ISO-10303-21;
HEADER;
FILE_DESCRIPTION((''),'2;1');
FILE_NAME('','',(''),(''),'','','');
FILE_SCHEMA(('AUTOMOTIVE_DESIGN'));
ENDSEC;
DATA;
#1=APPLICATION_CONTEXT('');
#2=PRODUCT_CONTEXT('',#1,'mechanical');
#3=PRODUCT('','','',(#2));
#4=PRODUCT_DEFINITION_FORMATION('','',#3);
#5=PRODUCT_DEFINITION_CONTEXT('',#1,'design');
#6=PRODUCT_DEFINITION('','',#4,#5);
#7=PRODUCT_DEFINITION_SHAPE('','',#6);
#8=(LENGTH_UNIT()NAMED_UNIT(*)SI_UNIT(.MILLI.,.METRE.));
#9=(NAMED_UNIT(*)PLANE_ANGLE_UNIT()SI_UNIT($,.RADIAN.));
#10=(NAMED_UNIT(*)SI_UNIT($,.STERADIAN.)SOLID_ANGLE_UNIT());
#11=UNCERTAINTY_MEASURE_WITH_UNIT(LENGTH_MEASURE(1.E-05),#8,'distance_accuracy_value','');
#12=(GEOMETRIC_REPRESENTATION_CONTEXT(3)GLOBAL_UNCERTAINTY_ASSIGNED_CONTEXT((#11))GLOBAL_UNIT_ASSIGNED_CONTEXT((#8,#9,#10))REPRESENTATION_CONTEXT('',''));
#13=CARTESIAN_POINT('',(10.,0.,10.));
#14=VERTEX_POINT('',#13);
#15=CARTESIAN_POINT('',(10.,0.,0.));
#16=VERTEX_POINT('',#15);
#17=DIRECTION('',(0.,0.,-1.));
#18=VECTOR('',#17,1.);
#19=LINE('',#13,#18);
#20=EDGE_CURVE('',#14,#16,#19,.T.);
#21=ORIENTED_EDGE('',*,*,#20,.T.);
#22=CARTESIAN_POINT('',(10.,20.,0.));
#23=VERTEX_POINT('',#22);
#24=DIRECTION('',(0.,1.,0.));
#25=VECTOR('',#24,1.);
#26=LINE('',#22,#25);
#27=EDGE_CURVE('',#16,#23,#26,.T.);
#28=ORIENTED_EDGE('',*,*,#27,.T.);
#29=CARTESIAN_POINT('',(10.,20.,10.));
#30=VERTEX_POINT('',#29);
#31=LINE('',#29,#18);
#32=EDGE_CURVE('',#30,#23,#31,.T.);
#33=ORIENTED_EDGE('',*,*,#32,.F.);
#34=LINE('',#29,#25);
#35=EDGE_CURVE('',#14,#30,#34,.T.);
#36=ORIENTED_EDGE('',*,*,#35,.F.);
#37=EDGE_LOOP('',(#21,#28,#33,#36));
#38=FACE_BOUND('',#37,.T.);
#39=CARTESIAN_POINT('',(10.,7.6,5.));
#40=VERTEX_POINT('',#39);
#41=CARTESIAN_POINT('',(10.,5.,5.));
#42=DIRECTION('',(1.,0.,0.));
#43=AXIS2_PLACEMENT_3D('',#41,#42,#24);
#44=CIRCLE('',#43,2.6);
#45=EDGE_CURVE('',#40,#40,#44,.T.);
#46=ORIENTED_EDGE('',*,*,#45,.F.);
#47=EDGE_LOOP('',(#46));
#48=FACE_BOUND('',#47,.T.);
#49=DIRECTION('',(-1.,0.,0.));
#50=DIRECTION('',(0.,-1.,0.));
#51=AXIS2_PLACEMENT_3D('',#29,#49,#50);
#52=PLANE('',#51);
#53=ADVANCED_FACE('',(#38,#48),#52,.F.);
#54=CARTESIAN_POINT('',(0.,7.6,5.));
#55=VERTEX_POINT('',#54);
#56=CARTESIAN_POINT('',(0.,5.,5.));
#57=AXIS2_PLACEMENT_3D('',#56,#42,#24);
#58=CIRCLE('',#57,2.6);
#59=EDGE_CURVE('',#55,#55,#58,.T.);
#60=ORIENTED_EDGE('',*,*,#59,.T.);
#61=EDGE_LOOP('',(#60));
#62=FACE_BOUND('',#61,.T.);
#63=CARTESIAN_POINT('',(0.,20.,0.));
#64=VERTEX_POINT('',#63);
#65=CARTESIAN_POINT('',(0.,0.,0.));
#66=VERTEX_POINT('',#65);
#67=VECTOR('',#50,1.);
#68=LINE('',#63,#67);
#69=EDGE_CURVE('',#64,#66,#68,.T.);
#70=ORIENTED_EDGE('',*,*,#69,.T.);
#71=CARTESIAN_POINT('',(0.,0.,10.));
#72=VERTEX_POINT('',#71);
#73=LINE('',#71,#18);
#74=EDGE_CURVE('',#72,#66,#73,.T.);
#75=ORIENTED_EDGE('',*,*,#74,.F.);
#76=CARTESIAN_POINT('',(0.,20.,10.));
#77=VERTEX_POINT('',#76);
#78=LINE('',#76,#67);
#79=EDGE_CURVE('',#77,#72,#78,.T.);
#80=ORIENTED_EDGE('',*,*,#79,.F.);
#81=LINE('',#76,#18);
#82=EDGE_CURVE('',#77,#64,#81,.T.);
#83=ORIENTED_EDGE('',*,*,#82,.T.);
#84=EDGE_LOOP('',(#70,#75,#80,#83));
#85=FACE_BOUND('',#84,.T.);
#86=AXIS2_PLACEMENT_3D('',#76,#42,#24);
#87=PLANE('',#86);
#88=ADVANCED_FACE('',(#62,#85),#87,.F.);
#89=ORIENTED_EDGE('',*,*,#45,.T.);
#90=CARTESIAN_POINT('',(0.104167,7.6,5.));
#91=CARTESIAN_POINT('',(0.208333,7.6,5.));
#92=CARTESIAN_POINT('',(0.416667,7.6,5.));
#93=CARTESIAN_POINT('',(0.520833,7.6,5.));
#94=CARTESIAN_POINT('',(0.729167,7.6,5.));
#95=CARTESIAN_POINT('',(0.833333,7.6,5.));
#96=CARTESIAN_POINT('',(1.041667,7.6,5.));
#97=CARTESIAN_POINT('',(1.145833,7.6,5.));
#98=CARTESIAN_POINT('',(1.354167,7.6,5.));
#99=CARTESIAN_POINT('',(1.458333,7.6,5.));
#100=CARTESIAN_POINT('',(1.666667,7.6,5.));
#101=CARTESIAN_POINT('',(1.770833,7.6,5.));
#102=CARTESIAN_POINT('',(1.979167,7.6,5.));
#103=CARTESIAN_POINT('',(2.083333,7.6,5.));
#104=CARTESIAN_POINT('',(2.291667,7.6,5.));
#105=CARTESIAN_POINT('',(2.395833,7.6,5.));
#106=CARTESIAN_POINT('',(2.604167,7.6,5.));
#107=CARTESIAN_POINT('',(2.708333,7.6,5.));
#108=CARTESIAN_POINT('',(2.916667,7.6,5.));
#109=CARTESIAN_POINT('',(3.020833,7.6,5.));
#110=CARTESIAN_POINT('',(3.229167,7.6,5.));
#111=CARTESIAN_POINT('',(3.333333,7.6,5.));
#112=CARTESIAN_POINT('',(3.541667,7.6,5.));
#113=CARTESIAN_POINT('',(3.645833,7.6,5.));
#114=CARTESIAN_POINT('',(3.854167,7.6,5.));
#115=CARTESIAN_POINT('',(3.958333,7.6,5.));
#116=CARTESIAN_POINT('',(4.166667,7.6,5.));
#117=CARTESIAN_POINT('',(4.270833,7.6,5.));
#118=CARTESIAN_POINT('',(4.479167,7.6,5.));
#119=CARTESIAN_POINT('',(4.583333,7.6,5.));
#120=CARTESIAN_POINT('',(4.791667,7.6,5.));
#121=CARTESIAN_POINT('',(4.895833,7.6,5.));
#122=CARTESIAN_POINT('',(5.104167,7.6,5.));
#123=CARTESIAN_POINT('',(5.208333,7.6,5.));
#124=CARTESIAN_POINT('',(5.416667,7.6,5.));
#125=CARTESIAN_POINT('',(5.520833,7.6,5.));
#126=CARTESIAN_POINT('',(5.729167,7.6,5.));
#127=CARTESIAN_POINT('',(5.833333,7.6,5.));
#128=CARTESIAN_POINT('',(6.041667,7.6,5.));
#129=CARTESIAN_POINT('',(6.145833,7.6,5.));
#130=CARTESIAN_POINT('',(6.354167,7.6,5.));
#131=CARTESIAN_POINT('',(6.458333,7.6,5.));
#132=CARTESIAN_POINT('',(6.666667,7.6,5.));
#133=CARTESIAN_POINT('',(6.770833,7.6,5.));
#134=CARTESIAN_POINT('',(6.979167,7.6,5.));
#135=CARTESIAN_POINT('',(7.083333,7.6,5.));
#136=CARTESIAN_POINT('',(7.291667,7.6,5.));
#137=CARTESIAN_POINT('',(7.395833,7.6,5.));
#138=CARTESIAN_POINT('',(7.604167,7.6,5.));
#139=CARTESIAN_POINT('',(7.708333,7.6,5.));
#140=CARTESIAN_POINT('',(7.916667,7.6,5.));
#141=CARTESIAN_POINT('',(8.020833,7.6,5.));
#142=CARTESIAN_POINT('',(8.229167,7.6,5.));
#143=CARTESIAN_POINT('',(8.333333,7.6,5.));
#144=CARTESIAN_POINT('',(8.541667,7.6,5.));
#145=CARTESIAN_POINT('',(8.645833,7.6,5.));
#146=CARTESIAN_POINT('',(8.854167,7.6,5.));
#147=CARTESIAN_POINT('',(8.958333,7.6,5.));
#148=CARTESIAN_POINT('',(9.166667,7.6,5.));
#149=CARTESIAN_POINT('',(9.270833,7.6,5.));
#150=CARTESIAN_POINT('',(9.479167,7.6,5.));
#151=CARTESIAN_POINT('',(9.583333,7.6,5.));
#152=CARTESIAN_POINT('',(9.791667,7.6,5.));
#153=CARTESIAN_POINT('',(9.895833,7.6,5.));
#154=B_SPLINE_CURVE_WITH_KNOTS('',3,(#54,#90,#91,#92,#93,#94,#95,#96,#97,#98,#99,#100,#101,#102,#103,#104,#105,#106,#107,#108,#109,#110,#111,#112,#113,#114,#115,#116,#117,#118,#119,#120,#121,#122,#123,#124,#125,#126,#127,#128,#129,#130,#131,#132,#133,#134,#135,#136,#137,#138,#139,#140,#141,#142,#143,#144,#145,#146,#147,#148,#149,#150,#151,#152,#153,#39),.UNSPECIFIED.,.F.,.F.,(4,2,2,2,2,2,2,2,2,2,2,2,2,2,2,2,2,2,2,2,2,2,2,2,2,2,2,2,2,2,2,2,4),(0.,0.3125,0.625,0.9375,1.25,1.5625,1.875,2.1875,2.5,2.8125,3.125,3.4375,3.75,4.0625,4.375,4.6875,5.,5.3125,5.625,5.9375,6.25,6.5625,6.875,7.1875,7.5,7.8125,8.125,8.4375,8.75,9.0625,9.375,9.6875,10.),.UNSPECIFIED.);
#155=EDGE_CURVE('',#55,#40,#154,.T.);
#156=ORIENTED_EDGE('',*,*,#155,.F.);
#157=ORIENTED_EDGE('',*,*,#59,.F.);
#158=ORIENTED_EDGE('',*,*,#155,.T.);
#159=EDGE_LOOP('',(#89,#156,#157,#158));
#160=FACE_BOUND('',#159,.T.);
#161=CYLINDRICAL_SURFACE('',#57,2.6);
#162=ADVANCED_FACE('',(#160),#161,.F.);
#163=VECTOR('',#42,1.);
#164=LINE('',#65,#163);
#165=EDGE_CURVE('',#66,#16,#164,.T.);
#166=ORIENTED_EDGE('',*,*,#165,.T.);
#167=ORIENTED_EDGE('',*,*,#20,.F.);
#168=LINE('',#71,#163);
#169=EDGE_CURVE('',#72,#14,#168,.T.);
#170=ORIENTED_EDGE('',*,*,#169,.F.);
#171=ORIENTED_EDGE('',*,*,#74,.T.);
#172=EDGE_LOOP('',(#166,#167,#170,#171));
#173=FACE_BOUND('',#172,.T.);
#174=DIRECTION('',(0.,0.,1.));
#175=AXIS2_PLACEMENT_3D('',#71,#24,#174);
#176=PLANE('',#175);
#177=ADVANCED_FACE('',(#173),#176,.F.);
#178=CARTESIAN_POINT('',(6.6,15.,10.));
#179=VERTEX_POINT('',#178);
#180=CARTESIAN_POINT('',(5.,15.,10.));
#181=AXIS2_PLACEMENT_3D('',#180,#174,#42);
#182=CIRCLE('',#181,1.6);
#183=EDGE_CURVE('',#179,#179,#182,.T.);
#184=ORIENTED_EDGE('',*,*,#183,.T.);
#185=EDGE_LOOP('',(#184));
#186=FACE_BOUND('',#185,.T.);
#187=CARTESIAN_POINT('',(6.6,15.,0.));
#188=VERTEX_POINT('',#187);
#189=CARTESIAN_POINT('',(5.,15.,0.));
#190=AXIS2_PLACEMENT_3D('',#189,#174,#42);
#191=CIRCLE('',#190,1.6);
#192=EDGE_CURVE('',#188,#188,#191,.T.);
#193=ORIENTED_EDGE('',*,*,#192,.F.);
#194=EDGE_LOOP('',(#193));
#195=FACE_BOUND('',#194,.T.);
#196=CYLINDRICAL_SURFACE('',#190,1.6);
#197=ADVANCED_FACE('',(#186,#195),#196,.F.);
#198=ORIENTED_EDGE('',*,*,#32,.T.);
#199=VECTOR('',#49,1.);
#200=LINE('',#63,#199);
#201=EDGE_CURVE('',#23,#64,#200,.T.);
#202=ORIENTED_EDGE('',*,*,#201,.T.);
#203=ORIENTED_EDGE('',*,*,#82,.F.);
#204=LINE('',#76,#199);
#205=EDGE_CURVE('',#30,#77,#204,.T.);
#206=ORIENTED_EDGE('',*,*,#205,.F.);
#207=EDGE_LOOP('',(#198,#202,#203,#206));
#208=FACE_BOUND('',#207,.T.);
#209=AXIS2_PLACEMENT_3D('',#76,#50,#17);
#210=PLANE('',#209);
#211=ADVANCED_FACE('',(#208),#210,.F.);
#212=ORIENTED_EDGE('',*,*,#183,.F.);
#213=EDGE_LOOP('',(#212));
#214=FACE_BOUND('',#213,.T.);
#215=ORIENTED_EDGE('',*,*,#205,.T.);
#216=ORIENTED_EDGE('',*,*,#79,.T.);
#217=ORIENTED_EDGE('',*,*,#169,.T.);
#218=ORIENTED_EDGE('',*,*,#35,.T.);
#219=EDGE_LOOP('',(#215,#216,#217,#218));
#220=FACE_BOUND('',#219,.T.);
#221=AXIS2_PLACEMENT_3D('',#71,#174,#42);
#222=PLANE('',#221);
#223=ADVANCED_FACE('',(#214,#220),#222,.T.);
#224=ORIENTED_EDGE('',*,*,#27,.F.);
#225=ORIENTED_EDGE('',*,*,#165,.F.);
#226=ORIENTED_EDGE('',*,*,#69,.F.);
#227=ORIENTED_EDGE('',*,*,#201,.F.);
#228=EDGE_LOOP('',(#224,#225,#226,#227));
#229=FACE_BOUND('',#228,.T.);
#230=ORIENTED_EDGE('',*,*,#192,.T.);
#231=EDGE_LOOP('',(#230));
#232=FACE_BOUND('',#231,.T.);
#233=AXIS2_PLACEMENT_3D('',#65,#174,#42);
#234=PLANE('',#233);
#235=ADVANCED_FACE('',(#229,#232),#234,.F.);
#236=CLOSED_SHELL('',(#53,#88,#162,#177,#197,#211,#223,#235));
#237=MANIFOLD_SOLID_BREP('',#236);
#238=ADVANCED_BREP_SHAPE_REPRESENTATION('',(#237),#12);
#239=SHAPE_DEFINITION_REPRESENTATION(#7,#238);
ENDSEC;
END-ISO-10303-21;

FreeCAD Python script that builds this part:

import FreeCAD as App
import Part
import Sketcher

V = App.Vector

doc = App.newDocument("Part")
params = doc.addObject("Spreadsheet::Sheet", "Params")
for row, (alias, value) in enumerate([
    ("sketch1_width", "10 mm"),
    ("sketch1_height", "20 mm"),
    ("pad1_length", "10 mm"),
    ("sketch2_diameter", "5.2 mm"),
    ("sketch3_diameter", "3.2 mm"),
    ("pocket2_length", "10 mm"),
], start=1):
    params.set(f"A{row}", alias)
    params.set(f"B{row}", "=" + value)
    params.setAlias(f"B{row}", alias)

body = doc.addObject("PartDesign::Body", "Body")

sketch1 = body.newObject("Sketcher::SketchObject", "Sketch")
sketch1.AttachmentSupport = (doc.getObject("XY_Plane"), [""])
sketch1.MapMode = "FlatFace"
sketch1.addGeometry([
    Part.LineSegment(V(0, 20, 0), V(0, 0, 0)),
    Part.LineSegment(V(0, 0, 0), V(10, 0, 0)),
    Part.LineSegment(V(10, 0, 0), V(10, 20, 0)),
    Part.LineSegment(V(10, 20, 0), V(0, 20, 0)),
], False)
sketch1.addConstraint([
    Sketcher.Constraint("Coincident", 0, 2, 1, 1),
    Sketcher.Constraint("Coincident", 1, 2, 2, 1),
    Sketcher.Constraint("Coincident", 2, 2, 3, 1),
    Sketcher.Constraint("Coincident", 3, 2, 0, 1),
    Sketcher.Constraint("Vertical", 0),
    Sketcher.Constraint("Horizontal", 1),
    Sketcher.Constraint("Vertical", 2),
    Sketcher.Constraint("Horizontal", 3),
    Sketcher.Constraint("Coincident", 0, 2, -1, 1),
    Sketcher.Constraint("DistanceX", 1, 1, 1, 2, 10.0),
    Sketcher.Constraint("DistanceY", 0, 2, 0, 1, 20.0),
])
sketch1.setExpression("Constraints[9]", "Params.sketch1_width")
sketch1.setExpression("Constraints[10]", "Params.sketch1_height")
pad1 = body.newObject("PartDesign::Pad", "Pad")
pad1.Profile = sketch1
pad1.setExpression("Length", "Params.pad1_length")

sketch2 = body.newObject("Sketcher::SketchObject", "Sketch001")
sketch2.AttachmentSupport = (doc.getObject("YZ_Plane"), [""])
sketch2.MapMode = "FlatFace"
sketch2.AttachmentOffset = App.Placement(V(0, 0, 10), App.Rotation())
sketch2.addGeometry(Part.Circle(V(5, 5, 0), V(0, 0, 1), 2.6), False)
sketch2.addConstraint([
    Sketcher.Constraint("Diameter", 0, 5.2),
    Sketcher.Constraint("DistanceX", -1, 1, 0, 3, 5.0),
    Sketcher.Constraint("DistanceY", -1, 1, 0, 3, 5.0),
])
sketch2.setExpression("Constraints[0]", "Params.sketch2_diameter")
pocket1 = body.newObject("PartDesign::Pocket", "Pocket")
pocket1.Profile = sketch2
pocket1.Type = "ThroughAll"

sketch3 = body.newObject("Sketcher::SketchObject", "Sketch002")
sketch3.AttachmentSupport = (doc.getObject("XY_Plane"), [""])
sketch3.MapMode = "FlatFace"
sketch3.AttachmentOffset = App.Placement(V(0, 0, 10), App.Rotation())
sketch3.addGeometry(Part.Circle(V(5, 15, 0), V(0, 0, 1), 1.6), False)
sketch3.addConstraint([
    Sketcher.Constraint("Diameter", 0, 3.2),
    Sketcher.Constraint("DistanceX", -1, 1, 0, 3, 5.0),
    Sketcher.Constraint("DistanceY", -1, 1, 0, 3, 15.0),
])
sketch3.setExpression("Constraints[0]", "Params.sketch3_diameter")
pocket2 = body.newObject("PartDesign::Pocket", "Pocket001")
pocket2.Profile = sketch3
pocket2.setExpression("Length", "Params.pocket2_length")

doc.recompute()
